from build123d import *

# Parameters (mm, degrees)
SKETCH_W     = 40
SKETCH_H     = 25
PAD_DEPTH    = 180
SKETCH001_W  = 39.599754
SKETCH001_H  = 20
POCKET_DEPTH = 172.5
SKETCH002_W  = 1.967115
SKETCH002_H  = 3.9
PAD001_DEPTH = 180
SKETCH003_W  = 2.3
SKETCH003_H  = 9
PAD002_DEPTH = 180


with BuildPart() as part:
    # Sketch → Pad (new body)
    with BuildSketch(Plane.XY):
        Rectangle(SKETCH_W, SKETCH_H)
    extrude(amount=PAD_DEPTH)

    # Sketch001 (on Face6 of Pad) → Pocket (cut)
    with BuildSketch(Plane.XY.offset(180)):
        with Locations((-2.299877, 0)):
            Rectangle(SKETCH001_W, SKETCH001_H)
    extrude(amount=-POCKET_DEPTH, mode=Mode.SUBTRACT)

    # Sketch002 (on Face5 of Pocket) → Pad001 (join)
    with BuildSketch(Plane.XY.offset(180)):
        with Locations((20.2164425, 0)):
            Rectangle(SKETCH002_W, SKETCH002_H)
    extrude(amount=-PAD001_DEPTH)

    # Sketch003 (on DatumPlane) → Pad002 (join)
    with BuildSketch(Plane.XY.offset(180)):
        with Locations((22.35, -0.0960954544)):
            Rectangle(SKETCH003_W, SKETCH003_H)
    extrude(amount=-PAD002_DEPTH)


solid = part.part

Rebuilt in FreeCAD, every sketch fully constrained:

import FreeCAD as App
import Part
import Sketcher
from FreeCAD import Vector
Q = App.Units.Quantity

doc = App.newDocument("Part")
body = doc.addObject("PartDesign::Body", "Body")

sketch1 = body.newObject("Sketcher::SketchObject", "Sketch")
sketch1.AttachmentSupport = (doc.getObject("XY_Plane"), [""])
sketch1.MapMode = "FlatFace"
sketch1.addGeometry(Part.LineSegment(Vector(-20, 12, 0), Vector(-20, -12, 0)), False)
sketch1.addGeometry(Part.LineSegment(Vector(-20, -12, 0), Vector(20, -12, 0)), False)
sketch1.addGeometry(Part.LineSegment(Vector(20, -12, 0), Vector(20, 12, 0)), False)
sketch1.addGeometry(Part.LineSegment(Vector(20, 12, 0), Vector(-20, 12, 0)), False)
sketch1.addConstraint(Sketcher.Constraint("Coincident", 0, 2, 1, 1))
sketch1.addConstraint(Sketcher.Constraint("Coincident", 1, 2, 2, 1))
sketch1.addConstraint(Sketcher.Constraint("Coincident", 2, 2, 3, 1))
sketch1.addConstraint(Sketcher.Constraint("Coincident", 3, 2, 0, 1))
sketch1.addConstraint(Sketcher.Constraint("Vertical", 0))
sketch1.addConstraint(Sketcher.Constraint("Horizontal", 1))
sketch1.addConstraint(Sketcher.Constraint("Vertical", 2))
sketch1.addConstraint(Sketcher.Constraint("Horizontal", 3))
sketch1.addConstraint(Sketcher.Constraint("Symmetric", 0, 2, 2, 2, -1, 1))
sketch1.addConstraint(Sketcher.Constraint("DistanceX", 1, 1, 1, 2, Q("40 mm")))
sketch1.addConstraint(Sketcher.Constraint("DistanceY", 0, 2, 0, 1, Q("25 mm")))
pad1 = body.newObject("PartDesign::Pad", "Pad")
pad1.Profile = sketch1
pad1.Length = 180

sketch2 = body.newObject("Sketcher::SketchObject", "Sketch001")
sketch2.AttachmentSupport = (doc.getObject("XY_Plane"), [""])
sketch2.MapMode = "FlatFace"
sketch2.AttachmentOffset = App.Placement(Vector(0, 0, 180), App.Rotation())
sketch2.addGeometry(Part.LineSegment(Vector(-22, 10, 0), Vector(-22, -10, 0)), False)
sketch2.addGeometry(Part.LineSegment(Vector(-22, -10, 0), Vector(18, -10, 0)), False)
sketch2.addGeometry(Part.LineSegment(Vector(18, -10, 0), Vector(18, 10, 0)), False)
sketch2.addGeometry(Part.LineSegment(Vector(18, 10, 0), Vector(-22, 10, 0)), False)
sketch2.addConstraint(Sketcher.Constraint("Coincident", 0, 2, 1, 1))
sketch2.addConstraint(Sketcher.Constraint("Coincident", 1, 2, 2, 1))
sketch2.addConstraint(Sketcher.Constraint("Coincident", 2, 2, 3, 1))
sketch2.addConstraint(Sketcher.Constraint("Coincident", 3, 2, 0, 1))
sketch2.addConstraint(Sketcher.Constraint("Vertical", 0))
sketch2.addConstraint(Sketcher.Constraint("Horizontal", 1))
sketch2.addConstraint(Sketcher.Constraint("Vertical", 2))
sketch2.addConstraint(Sketcher.Constraint("Horizontal", 3))
sketch2.addConstraint(Sketcher.Constraint("DistanceY", 0, 2, 0, 1, Q("20 mm")))
sketch2.addConstraint(Sketcher.Constraint("DistanceY", 0, 2, -1, 1, Q("10 mm")))
sketch2.addConstraint(Sketcher.Constraint("DistanceX", -1, 1, 1, 2, Q("17.5 mm")))
sketch2.addConstraint(Sketcher.Constraint("DistanceX", 1, 1, 1, 2, Q("39.599754 mm")))
pocket1 = body.newObject("PartDesign::Pocket", "Pocket")
pocket1.Profile = sketch2
pocket1.Length = 172.5

sketch3 = body.newObject("Sketcher::SketchObject", "Sketch002")
sketch3.AttachmentSupport = (doc.getObject("XY_Plane"), [""])
sketch3.MapMode = "FlatFace"
sketch3.AttachmentOffset = App.Placement(Vector(0, 0, 180), App.Rotation())
sketch3.addGeometry(Part.LineSegment(Vector(19.2, 1.9, 0), Vector(19.2, -1.9, 0)), False)
sketch3.addGeometry(Part.LineSegment(Vector(19.2, -1.9, 0), Vector(21.2, -1.9, 0)), False)
sketch3.addGeometry(Part.LineSegment(Vector(21.2, -1.9, 0), Vector(21.2, 1.9, 0)), False)
sketch3.addGeometry(Part.LineSegment(Vector(21.2, 1.9, 0), Vector(19.2, 1.9, 0)), False)
sketch3.addConstraint(Sketcher.Constraint("Coincident", 0, 2, 1, 1))
sketch3.addConstraint(Sketcher.Constraint("Coincident", 1, 2, 2, 1))
sketch3.addConstraint(Sketcher.Constraint("Coincident", 2, 2, 3, 1))
sketch3.addConstraint(Sketcher.Constraint("Coincident", 3, 2, 0, 1))
sketch3.addConstraint(Sketcher.Constraint("Vertical", 0))
sketch3.addConstraint(Sketcher.Constraint("Horizontal", 1))
sketch3.addConstraint(Sketcher.Constraint("Vertical", 2))
sketch3.addConstraint(Sketcher.Constraint("Horizontal", 3))
sketch3.addConstraint(Sketcher.Constraint("DistanceY", 0, 2, 0, 1, Q("3.9 mm")))
sketch3.addConstraint(Sketcher.Constraint("DistanceX", -1, 1, 1, 2, Q("21.2 mm")))
sketch3.addConstraint(Sketcher.Constraint("DistanceY", 0, 2, -1, 1, Q("1.95 mm")))
sketch3.addConstraint(Sketcher.Constraint("DistanceX", 1, 1, 1, 2, Q("1.967115 mm")))
pad2 = body.newObject("PartDesign::Pad", "Pad001")
pad2.Profile = sketch3
pad2.Length = 180
pad2.Reversed = True

sketch4 = body.newObject("Sketcher::SketchObject", "Sketch003")
sketch4.AttachmentSupport = (doc.getObject("XY_Plane"), [""])
sketch4.MapMode = "FlatFace"
sketch4.AttachmentOffset = App.Placement(Vector(0, 0, 180), App.Rotation())
sketch4.addGeometry(Part.LineSegment(Vector(21.2, 4.4, 0), Vector(21.2, -4.6, 0)), False)
sketch4.addGeometry(Part.LineSegment(Vector(21.2, -4.6, 0), Vector(23.5, -4.6, 0)), False)
sketch4.addGeometry(Part.LineSegment(Vector(23.5, -4.6, 0), Vector(23.5, 4.4, 0)), False)
sketch4.addGeometry(Part.LineSegment(Vector(23.5, 4.4, 0), Vector(21.2, 4.4, 0)), False)
sketch4.addConstraint(Sketcher.Constraint("Coincident", 0, 2, 1, 1))
sketch4.addConstraint(Sketcher.Constraint("Coincident", 1, 2, 2, 1))
sketch4.addConstraint(Sketcher.Constraint("Coincident", 2, 2, 3, 1))
sketch4.addConstraint(Sketcher.Constraint("Coincident", 3, 2, 0, 1))
sketch4.addConstraint(Sketcher.Constraint("Vertical", 0))
sketch4.addConstraint(Sketcher.Constraint("Horizontal", 1))
sketch4.addConstraint(Sketcher.Constraint("Vertical", 2))
sketch4.addConstraint(Sketcher.Constraint("Horizontal", 3))
sketch4.addConstraint(Sketcher.Constraint("DistanceY", 0, 2, 0, 1, Q("9 mm")))
sketch4.addConstraint(Sketcher.Constraint("DistanceX", 1, 1, 1, 2, Q("2.3 mm")))
sketch4.addConstraint(Sketcher.Constraint("DistanceX", -1, 1, 0, 2, Q("21.2 mm")))
sketch4.addConstraint(Sketcher.Constraint("DistanceY", 0, 2, -1, 1, Q("4.596095 mm")))
pad3 = body.newObject("PartDesign::Pad", "Pad002")
pad3.Profile = sketch4
pad3.Length = 180
pad3.Reversed = True

doc.recompute()
